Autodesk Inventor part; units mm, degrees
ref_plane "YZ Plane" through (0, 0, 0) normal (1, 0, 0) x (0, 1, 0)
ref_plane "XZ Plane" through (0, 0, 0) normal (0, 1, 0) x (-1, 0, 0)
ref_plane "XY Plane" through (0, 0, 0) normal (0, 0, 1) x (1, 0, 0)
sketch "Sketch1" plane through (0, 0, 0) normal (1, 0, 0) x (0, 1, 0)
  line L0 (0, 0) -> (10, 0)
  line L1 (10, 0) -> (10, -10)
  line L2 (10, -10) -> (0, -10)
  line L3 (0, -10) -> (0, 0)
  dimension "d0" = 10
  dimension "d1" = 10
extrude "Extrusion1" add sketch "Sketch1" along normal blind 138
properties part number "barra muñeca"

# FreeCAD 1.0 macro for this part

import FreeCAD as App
import Part
import Sketcher
from FreeCAD import Vector
Q = App.Units.Quantity


def add_polygon(sketch, points):
    """Adds a closed chain of lines whose ends are joined by coincident constraints."""
    first, n = sketch.GeometryCount, len(points)
    for a, b in zip(points, points[1:] + points[:1]):
        sketch.addGeometry(Part.LineSegment(App.Vector(*a, 0), App.Vector(*b, 0)), False)
    for i in range(n):
        sketch.addConstraint(Sketcher.Constraint("Coincident", first + i, 2, first + (i + 1) % n, 1))

doc = App.newDocument("Part")
body = doc.addObject("PartDesign::Body", "Body")

# Sketch on YZ plane
sketch1 = doc.addObject("Sketcher::SketchObject", "Sketch")
body.addObject(sketch1)
sketch1.AttachmentSupport = (doc.YZ_Plane, [""])
sketch1.MapMode = "FlatFace"
add_polygon(sketch1, [(10, 0), (0, 0), (0, -10), (10, -10)])  # lines 0-3
sketch1.addConstraint([
    Sketcher.Constraint("Horizontal", 0),
    Sketcher.Constraint("Vertical", 1),
    Sketcher.Constraint("Horizontal", 2),
    Sketcher.Constraint("Vertical", 3),
    Sketcher.Constraint("Coincident", 0, 2, -1, 1),
    Sketcher.Constraint("Equal", 2, 1),
    Sketcher.Constraint("DistanceX", 0, 2, 0, 1, Q("10 mm")),
])
pad1 = doc.addObject("PartDesign::Pad", "Pad")
body.addObject(pad1)
pad1.Profile = sketch1
pad1.Length = 138

doc.recompute()
